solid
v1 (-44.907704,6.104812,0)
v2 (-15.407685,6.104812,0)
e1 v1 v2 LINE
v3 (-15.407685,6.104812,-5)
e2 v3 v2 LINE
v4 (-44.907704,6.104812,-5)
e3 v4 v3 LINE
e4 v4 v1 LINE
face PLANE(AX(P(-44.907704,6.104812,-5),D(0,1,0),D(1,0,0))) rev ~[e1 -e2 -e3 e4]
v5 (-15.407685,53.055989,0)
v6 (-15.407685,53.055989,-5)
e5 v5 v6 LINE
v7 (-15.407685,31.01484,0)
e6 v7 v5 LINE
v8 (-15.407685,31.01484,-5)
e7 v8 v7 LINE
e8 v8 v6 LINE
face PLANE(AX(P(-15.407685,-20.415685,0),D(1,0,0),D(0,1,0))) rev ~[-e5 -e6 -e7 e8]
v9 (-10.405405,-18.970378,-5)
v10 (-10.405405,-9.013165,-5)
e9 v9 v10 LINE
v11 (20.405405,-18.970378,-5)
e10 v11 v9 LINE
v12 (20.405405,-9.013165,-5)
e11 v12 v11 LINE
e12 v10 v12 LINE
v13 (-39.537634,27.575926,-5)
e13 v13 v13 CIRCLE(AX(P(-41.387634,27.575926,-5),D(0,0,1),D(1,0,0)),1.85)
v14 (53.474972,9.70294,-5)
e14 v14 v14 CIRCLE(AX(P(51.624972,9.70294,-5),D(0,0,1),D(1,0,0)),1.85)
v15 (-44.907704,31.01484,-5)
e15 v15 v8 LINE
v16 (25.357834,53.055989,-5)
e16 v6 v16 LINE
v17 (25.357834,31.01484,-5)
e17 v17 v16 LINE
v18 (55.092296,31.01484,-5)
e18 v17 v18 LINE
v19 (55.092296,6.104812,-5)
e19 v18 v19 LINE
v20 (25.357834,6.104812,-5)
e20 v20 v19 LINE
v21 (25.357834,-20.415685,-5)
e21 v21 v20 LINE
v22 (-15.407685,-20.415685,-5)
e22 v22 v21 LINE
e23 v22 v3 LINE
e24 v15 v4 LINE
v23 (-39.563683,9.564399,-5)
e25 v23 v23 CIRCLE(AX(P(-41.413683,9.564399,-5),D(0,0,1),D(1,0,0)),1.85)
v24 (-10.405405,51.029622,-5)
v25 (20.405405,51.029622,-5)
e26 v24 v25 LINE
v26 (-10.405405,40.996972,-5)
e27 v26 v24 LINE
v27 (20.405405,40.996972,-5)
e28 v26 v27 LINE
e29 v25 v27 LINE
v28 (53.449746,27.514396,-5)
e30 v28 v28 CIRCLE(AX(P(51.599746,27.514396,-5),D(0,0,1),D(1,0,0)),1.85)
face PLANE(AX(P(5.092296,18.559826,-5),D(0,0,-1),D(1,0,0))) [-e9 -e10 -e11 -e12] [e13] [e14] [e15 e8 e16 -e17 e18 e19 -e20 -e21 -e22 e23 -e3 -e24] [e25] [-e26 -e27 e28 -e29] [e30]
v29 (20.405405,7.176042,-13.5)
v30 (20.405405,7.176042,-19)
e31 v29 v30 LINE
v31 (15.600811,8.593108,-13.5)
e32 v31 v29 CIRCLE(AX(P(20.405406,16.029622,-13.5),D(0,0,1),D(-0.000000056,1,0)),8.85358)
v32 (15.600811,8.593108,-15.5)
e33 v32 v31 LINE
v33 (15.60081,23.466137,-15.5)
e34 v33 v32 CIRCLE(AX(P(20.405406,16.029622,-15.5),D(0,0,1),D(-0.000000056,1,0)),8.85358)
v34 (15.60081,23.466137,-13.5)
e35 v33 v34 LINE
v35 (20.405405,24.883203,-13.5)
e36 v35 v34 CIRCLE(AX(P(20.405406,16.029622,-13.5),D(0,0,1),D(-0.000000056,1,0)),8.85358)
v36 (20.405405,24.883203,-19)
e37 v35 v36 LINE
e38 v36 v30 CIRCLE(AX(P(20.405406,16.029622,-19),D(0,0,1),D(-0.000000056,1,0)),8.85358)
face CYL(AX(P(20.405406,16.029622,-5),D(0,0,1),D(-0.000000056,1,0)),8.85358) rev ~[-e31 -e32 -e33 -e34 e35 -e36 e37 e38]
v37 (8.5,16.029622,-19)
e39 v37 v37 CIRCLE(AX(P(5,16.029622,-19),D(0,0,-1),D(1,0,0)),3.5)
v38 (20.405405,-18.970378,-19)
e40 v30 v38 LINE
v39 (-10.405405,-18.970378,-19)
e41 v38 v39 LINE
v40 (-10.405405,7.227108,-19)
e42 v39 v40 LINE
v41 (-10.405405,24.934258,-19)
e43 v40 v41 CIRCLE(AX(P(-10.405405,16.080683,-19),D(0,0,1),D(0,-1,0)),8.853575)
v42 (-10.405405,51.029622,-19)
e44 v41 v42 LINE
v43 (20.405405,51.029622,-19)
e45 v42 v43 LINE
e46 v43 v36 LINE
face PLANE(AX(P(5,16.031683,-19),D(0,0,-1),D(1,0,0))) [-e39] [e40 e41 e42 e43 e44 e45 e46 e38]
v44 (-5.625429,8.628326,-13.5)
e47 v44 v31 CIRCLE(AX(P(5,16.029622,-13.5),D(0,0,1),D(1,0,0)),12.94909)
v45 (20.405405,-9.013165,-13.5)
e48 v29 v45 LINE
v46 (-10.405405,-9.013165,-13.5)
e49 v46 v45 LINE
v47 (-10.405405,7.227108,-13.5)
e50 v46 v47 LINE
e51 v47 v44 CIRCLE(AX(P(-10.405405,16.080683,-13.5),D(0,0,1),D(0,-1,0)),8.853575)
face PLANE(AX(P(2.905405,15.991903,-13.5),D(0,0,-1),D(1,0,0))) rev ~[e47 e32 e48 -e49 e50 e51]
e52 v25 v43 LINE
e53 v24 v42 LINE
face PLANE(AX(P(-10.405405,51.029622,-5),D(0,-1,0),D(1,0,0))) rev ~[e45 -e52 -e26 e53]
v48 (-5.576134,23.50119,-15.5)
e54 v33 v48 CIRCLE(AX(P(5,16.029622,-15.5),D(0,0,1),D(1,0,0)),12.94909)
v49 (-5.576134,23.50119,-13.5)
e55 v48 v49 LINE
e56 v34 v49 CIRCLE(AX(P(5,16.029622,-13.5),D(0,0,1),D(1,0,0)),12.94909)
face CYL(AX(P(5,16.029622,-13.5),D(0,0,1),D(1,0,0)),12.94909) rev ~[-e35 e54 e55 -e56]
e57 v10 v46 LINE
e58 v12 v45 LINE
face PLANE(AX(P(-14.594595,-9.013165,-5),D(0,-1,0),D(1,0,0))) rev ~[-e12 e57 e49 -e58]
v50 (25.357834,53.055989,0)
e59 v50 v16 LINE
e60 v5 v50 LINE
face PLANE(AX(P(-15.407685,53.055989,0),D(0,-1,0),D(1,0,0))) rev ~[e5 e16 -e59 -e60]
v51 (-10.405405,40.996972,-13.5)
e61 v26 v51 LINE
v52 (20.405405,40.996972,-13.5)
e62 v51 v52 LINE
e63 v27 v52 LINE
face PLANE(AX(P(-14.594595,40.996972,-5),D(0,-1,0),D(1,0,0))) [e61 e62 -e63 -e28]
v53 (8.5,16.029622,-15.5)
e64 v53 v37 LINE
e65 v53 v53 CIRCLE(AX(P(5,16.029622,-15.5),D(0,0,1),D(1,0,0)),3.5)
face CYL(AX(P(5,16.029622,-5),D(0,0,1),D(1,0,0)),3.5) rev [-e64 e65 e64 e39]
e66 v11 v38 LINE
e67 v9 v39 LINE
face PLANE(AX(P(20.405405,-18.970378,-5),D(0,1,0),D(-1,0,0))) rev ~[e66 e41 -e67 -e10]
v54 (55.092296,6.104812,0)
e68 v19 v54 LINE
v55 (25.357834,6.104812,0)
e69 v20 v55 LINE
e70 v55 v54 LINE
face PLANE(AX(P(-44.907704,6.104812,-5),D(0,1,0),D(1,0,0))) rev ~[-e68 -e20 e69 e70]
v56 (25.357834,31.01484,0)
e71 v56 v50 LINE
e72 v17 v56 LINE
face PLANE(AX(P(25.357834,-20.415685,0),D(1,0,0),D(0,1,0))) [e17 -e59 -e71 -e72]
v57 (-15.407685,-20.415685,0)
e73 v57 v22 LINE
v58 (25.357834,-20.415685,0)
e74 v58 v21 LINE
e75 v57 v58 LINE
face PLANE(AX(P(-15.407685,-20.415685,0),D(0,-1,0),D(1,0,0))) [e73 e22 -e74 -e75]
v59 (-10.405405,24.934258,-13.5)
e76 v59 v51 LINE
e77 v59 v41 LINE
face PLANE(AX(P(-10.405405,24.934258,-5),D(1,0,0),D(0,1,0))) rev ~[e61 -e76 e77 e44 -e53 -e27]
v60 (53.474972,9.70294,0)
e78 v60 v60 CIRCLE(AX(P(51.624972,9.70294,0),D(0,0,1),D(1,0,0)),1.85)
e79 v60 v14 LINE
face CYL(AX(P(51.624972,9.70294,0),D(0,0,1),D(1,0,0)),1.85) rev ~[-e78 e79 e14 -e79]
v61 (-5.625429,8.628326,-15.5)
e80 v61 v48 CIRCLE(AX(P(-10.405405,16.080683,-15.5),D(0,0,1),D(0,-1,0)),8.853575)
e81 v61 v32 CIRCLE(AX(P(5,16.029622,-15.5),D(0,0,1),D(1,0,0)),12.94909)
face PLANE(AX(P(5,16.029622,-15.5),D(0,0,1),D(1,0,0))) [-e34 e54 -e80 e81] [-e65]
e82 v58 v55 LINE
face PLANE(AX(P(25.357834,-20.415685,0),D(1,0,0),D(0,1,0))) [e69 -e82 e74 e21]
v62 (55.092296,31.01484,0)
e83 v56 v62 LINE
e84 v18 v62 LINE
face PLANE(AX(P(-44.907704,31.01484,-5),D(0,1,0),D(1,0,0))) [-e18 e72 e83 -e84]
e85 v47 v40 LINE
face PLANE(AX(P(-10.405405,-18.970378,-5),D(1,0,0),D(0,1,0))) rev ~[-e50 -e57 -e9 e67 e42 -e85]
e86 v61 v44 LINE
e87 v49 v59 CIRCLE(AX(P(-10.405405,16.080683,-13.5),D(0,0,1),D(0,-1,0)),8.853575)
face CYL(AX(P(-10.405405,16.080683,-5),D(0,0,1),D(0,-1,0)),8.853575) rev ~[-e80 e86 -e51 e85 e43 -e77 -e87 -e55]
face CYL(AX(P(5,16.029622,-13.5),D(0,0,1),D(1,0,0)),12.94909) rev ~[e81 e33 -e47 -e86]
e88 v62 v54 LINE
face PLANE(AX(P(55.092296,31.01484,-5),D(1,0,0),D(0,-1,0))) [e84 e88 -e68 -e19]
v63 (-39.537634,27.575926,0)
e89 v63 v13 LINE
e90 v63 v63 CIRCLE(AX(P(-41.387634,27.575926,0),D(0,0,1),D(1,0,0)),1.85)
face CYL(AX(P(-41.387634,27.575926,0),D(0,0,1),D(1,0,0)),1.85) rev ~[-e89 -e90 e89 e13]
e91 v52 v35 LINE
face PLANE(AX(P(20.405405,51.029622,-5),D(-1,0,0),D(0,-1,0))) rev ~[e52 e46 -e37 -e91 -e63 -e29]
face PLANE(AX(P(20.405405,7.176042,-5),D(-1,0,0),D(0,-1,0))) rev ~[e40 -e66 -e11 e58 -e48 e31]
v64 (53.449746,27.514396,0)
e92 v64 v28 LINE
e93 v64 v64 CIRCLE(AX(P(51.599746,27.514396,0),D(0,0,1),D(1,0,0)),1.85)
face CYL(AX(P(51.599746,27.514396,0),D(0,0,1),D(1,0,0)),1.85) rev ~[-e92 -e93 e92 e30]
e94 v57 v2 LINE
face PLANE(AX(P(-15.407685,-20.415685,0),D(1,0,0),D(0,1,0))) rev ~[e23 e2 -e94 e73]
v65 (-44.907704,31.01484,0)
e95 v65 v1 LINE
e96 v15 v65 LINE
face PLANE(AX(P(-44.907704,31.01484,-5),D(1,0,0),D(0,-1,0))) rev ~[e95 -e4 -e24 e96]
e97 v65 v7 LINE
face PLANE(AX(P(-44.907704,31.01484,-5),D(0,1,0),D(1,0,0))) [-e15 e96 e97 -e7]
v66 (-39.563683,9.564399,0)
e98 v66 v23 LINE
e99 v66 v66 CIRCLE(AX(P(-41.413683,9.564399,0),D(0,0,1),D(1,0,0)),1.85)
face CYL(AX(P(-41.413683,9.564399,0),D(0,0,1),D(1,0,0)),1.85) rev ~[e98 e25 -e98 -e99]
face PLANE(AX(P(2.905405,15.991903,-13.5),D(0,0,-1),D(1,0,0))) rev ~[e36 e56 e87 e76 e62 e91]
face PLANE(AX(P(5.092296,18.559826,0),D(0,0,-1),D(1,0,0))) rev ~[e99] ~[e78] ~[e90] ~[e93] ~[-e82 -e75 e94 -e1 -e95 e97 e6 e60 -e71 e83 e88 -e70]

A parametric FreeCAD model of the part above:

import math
import FreeCAD as App
import Part
import Sketcher


def add_polygon(sketch, points):
    """Adds a closed chain of lines whose ends are joined by coincident constraints."""
    first, n = sketch.GeometryCount, len(points)
    for a, b in zip(points, points[1:] + points[:1]):
        sketch.addGeometry(Part.LineSegment(App.Vector(*a, 0), App.Vector(*b, 0)), False)
    for i in range(n):
        sketch.addConstraint(Sketcher.Constraint("Coincident", first + i, 2, first + (i + 1) % n, 1))

doc = App.newDocument("Part")
params = doc.addObject("Spreadsheet::Sheet", "Params")
for row, (alias, value) in enumerate([
    ("pad1_length", "5 mm"),
    ("sketch2_diameter", "7 mm"),
    ("pad2_length", "14 mm"),
    ("sketch3_width", "35 mm"),
    ("pocket1_length", "8.5 mm"),
    ("sketch4_width", "100 mm"),
    ("pad3_length", "5 mm"),
    ("sketch5_diameter", "3.7 mm"),
    ("pocket2_length", "25.4 mm"),
    ("pocket3_length", "2 mm"),
], start=1):
    params.set(f"A{row}", alias)
    params.set(f"B{row}", "=" + value)
    params.setAlias(f"B{row}", alias)

body = doc.addObject("PartDesign::Body", "Body")

# Sketch on XY plane
sketch1 = body.newObject("Sketcher::SketchObject", "Sketch")
sketch1.AttachmentSupport = (doc.getObject("XY_Plane"), [""])
sketch1.MapMode = "FlatFace"
add_polygon(sketch1, [(-15.407685, 53.055989), (-15.407685, -20.415685), (25.357834, -20.415685), (25.357834, 53.055989)])  # lines 0-3
sketch1.addConstraint([
    Sketcher.Constraint("Vertical", 0),
    Sketcher.Constraint("Horizontal", 1),
    Sketcher.Constraint("Vertical", 2),
    Sketcher.Constraint("Horizontal", 3),
    Sketcher.Constraint("DistanceX", 1, 1, 1, 2, 40.765519),
    Sketcher.Constraint("DistanceY", 0, 2, 0, 1, 73.471674),
    Sketcher.Constraint("DistanceY", -1, 1, 2, 2, 53.055989),
    Sketcher.Constraint("DistanceX", 0, 2, -1, 1, 15.407685),
])
pad1 = body.newObject("PartDesign::Pad", "Pad")
pad1.Profile = sketch1
pad1.setExpression("Length", "Params.pad1_length")
pad1.Reversed = True

# Sketch on XY plane
sketch2 = body.newObject("Sketcher::SketchObject", "Sketch001")
sketch2.AttachmentSupport = (doc.getObject("XY_Plane"), [""])
sketch2.MapMode = "FlatFace"
sketch2.AttachmentOffset = App.Placement(App.Vector(0, 0, -5), App.Rotation())
sketch2.addGeometry([
    Part.LineSegment(App.Vector(20.405405, -18.970378, 0), App.Vector(-10.405405, -18.970378, 0)),  # 0
    Part.LineSegment(App.Vector(-10.405405, -18.970378, 0), App.Vector(-10.405405, 7.227108, 0)),  # 1
    Part.ArcOfCircle(Part.Circle(App.Vector(-10.405405, 16.080683, 0), App.Vector(0, 0, 1), 8.853575), math.radians(-90), math.radians(90)),  # 2
    Part.LineSegment(App.Vector(-10.405405, 24.934258, 0), App.Vector(-10.405405, 51.029622, 0)),  # 3
    Part.LineSegment(App.Vector(-10.405405, 51.029622, 0), App.Vector(20.405405, 51.029622, 0)),  # 4
    Part.LineSegment(App.Vector(20.405405, 51.029622, 0), App.Vector(20.405405, 24.883203, 0)),  # 5
    Part.ArcOfCircle(Part.Circle(App.Vector(20.405406, 16.029622, 0), App.Vector(0, 0, 1), 8.85358), math.radians(90.000003), math.radians(269.999997)),  # 6
    Part.LineSegment(App.Vector(20.405405, 7.176042, 0), App.Vector(20.405405, -18.970378, 0)),  # 7
    Part.Circle(App.Vector(5, 16.029622, 0), App.Vector(0, 0, 1), 3.5),  # 8
], False)
sketch2.addConstraint([
    Sketcher.Constraint("Coincident", 0, 2, 1, 1),
    Sketcher.Constraint("Coincident", 1, 2, 2, 1),
    Sketcher.Constraint("Coincident", 2, 2, 3, 1),
    Sketcher.Constraint("Coincident", 3, 2, 4, 1),
    Sketcher.Constraint("Coincident", 4, 2, 5, 1),
    Sketcher.Constraint("Coincident", 5, 2, 6, 1),
    Sketcher.Constraint("Coincident", 6, 2, 7, 1),
    Sketcher.Constraint("Coincident", 7, 2, 0, 1),
    Sketcher.Constraint("Horizontal", 0),
    Sketcher.Constraint("Vertical", 1),
    Sketcher.Constraint("Vertical", 3),
    Sketcher.Constraint("Horizontal", 4),
    Sketcher.Constraint("Vertical", 5),
    Sketcher.Constraint("Vertical", 7),
    Sketcher.Constraint("Horizontal", 6, 3, 8, 3),
    Sketcher.Constraint("Vertical", 2, 3, 0, 2),
    Sketcher.Constraint("Vertical", 1, 2, 2, 2),
    Sketcher.Constraint("Vertical", 6, 3, 4, 2),
    Sketcher.Constraint("Vertical", 5, 2, 6, 2),
    Sketcher.Constraint("Equal", 5, 7),
    Sketcher.Constraint("Diameter", 8, 7.0),
    Sketcher.Constraint("DistanceX", -1, 1, 8, 3, 5.0),
    Sketcher.Constraint("DistanceY", 0, 2, 8, 3, 35.0),
    Sketcher.Constraint("Radius", 6, 8.85358),
    Sketcher.Constraint("Radius", 2, 8.853575),
    Sketcher.Constraint("DistanceX", 0, 2, 0, 1, 30.81081),
    Sketcher.Constraint("DistanceY", 1, 1, 1, 2, 26.197486),
    Sketcher.Constraint("DistanceY", -1, 1, 8, 3, 16.029622),
    Sketcher.Constraint("DistanceX", 2, 3, -1, 1, 10.405405),
])
sketch2.setExpression("Constraints[20]", "Params.sketch2_diameter")
pad2 = body.newObject("PartDesign::Pad", "Pad001")
pad2.Profile = sketch2
pad2.setExpression("Length", "Params.pad2_length")
pad2.Reversed = True

# Sketch on XY plane
sketch3 = body.newObject("Sketcher::SketchObject", "Sketch002")
sketch3.AttachmentSupport = (doc.getObject("XY_Plane"), [""])
sketch3.MapMode = "FlatFace"
sketch3.AttachmentOffset = App.Placement(App.Vector(0, 0, -5), App.Rotation())
add_polygon(sketch3, [(-14.594595, -9.013165), (-14.594595, 40.996972), (20.405405, 40.996972), (20.405405, -9.013165)])  # lines 0-3
sketch3.addConstraint([
    Sketcher.Constraint("Vertical", 0),
    Sketcher.Constraint("Horizontal", 1),
    Sketcher.Constraint("Vertical", 2),
    Sketcher.Constraint("Horizontal", 3),
    Sketcher.Constraint("DistanceX", 1, 1, 1, 2, 35.0),
    Sketcher.Constraint("DistanceY", 0, 1, 0, 2, 50.010137),
    Sketcher.Constraint("DistanceY", -1, 1, 0, 2, 40.996972),
    Sketcher.Constraint("DistanceX", 0, 2, -1, 1, 14.594595),
])
sketch3.setExpression("Constraints[8]", "Params.sketch3_width")
pocket1 = body.newObject("PartDesign::Pocket", "Pocket")
pocket1.Profile = sketch3
pocket1.setExpression("Length", "Params.pocket1_length")

# Sketch on XY plane
sketch4 = body.newObject("Sketcher::SketchObject", "Sketch003")
sketch4.AttachmentSupport = (doc.getObject("XY_Plane"), [""])
sketch4.MapMode = "FlatFace"
sketch4.AttachmentOffset = App.Placement(App.Vector(0, 0, -5), App.Rotation())
add_polygon(sketch4, [(-44.907704, 6.104812), (-44.907704, 31.01484), (55.092296, 31.01484), (55.092296, 6.104812)])  # lines 0-3
sketch4.addConstraint([
    Sketcher.Constraint("Vertical", 0),
    Sketcher.Constraint("Horizontal", 1),
    Sketcher.Constraint("Vertical", 2),
    Sketcher.Constraint("Horizontal", 3),
    Sketcher.Constraint("DistanceX", 1, 1, 1, 2, 100.0),
    Sketcher.Constraint("DistanceY", 0, 1, 0, 2, 24.910029),
    Sketcher.Constraint("DistanceY", -1, 1, 0, 2, 31.01484),
    Sketcher.Constraint("DistanceX", 0, 2, -1, 1, 44.907704),
])
sketch4.setExpression("Constraints[8]", "Params.sketch4_width")
pad3 = body.newObject("PartDesign::Pad", "Pad002")
pad3.Profile = sketch4
pad3.setExpression("Length", "Params.pad3_length")

# Sketch on XY plane
sketch5 = body.newObject("Sketcher::SketchObject", "Sketch004")
sketch5.AttachmentSupport = (doc.getObject("XY_Plane"), [""])
sketch5.MapMode = "FlatFace"
sketch5.addGeometry([
    Part.Circle(App.Vector(-41.387634, 27.575926, 0), App.Vector(0, 0, 1), 1.85),
    Part.Circle(App.Vector(51.599746, 27.514396, 0), App.Vector(0, 0, 1), 1.85),
    Part.Circle(App.Vector(-41.413683, 9.564399, 0), App.Vector(0, 0, 1), 1.85),
    Part.Circle(App.Vector(51.624972, 9.70294, 0), App.Vector(0, 0, 1), 1.85),
], False)
sketch5.addConstraint([
    Sketcher.Constraint("Equal", 0, 1),
    Sketcher.Constraint("Equal", 1, 2),
    Sketcher.Constraint("Equal", 2, 3),
    Sketcher.Constraint("Diameter", 0, 3.7),
    Sketcher.Constraint("DistanceY", -1, 1, 2, 3, 9.564399),
    Sketcher.Constraint("DistanceY", -1, 1, 3, 3, 9.70294),
    Sketcher.Constraint("DistanceX", 0, 3, 1, 3, 92.98738),
    Sketcher.Constraint("DistanceY", 1, 3, 0, 3, 0.06153),
    Sketcher.Constraint("DistanceX", 2, 3, 0, 3, 0.026049),
    Sketcher.Constraint("DistanceX", 0, 3, -1, 1, 41.387634),
    Sketcher.Constraint("DistanceY", -1, 1, 0, 3, 27.575926),
    Sketcher.Constraint("DistanceX", -1, 1, 3, 3, 51.624972),
])
sketch5.setExpression("Constraints[3]", "Params.sketch5_diameter")
pocket2 = body.newObject("PartDesign::Pocket", "Pocket001")
pocket2.Profile = sketch5
pocket2.setExpression("Length", "Params.pocket2_length")

# Sketch on XY plane
sketch6 = body.newObject("Sketcher::SketchObject", "Sketch005")
sketch6.AttachmentSupport = (doc.getObject("XY_Plane"), [""])
sketch6.MapMode = "FlatFace"
sketch6.AttachmentOffset = App.Placement(App.Vector(0, 0, -13.5), App.Rotation())
sketch6.addGeometry(Part.Circle(App.Vector(5, 16.029622, 0), App.Vector(0, 0, 1), 12.94909), False)
sketch6.addConstraint([
    Sketcher.Constraint("DistanceX", -1, 1, 0, 3, 5.0),
    Sketcher.Constraint("Diameter", 0, 25.89818),
    Sketcher.Constraint("DistanceY", -1, 1, 0, 3, 16.029622),
])
pocket3 = body.newObject("PartDesign::Pocket", "Pocket002")
pocket3.Profile = sketch6
pocket3.setExpression("Length", "Params.pocket3_length")

doc.recompute()
